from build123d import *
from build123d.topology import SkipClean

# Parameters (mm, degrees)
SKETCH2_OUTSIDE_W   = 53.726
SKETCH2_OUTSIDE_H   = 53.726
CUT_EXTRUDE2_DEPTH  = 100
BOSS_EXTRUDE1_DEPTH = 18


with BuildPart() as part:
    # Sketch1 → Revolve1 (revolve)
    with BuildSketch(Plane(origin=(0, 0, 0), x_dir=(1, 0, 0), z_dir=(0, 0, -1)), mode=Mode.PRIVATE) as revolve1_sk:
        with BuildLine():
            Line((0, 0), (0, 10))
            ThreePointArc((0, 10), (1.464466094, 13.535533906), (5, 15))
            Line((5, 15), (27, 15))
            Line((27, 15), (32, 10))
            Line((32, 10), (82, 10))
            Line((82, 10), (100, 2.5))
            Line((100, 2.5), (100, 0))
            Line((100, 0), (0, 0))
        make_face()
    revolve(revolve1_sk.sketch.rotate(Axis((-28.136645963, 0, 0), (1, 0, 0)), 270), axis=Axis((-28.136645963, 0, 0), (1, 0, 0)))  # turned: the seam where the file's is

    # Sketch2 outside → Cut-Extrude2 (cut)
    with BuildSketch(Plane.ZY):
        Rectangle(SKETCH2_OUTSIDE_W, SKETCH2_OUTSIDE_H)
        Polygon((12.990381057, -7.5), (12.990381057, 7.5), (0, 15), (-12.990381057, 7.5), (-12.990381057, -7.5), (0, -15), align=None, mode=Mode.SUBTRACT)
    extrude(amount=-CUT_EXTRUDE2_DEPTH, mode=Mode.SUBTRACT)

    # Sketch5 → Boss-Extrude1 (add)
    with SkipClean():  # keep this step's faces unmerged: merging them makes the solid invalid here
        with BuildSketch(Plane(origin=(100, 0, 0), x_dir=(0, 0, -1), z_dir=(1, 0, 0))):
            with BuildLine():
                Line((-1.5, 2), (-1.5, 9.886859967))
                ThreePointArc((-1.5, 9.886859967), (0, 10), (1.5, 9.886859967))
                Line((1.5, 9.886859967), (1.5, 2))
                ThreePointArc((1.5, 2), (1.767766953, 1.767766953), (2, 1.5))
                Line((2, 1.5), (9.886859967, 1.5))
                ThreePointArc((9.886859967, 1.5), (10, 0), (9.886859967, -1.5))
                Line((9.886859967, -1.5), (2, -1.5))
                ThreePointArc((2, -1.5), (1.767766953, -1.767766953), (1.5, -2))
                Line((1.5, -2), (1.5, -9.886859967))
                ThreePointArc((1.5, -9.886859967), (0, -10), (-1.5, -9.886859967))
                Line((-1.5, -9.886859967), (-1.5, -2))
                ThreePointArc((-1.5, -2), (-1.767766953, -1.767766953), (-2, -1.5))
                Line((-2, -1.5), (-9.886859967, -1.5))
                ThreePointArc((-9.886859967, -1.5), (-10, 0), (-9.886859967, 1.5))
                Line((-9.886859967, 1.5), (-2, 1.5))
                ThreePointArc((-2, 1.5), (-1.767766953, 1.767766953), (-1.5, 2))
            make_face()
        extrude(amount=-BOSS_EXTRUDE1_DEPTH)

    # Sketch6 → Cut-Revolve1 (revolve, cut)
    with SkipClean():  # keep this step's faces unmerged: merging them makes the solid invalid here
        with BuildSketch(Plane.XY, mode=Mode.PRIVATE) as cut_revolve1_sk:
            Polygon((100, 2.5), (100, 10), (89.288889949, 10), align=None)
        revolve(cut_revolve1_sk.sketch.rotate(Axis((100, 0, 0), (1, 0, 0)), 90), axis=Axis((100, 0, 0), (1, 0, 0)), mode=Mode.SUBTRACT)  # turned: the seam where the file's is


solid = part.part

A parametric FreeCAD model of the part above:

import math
import FreeCAD as App
import Part
import Sketcher

V = App.Vector
Q = App.Units.Quantity

doc = App.newDocument("Part")
params = doc.addObject("Spreadsheet::Sheet", "Params")
for row, (alias, value) in enumerate([
    ("sketch1_radius", "5 mm"),
    ("sketch1_width", "100 mm"),
    ("sketch1_width2", "50 mm"),
    ("sketch1_width3", "22 mm"),
    ("sketch1_height", "10 mm"),
    ("revolution_angle", "360 deg"),
    ("sketch2_width", "15 mm"),
    ("sketch2_length", "15 mm"),
    ("pocket1_length", "100 mm"),
    ("sketch3_radius", "10 mm"),
    ("sketch3_radius2", "2.5 mm"),
    ("pad1_length", "18 mm"),
    ("sketch4_height", "7.5 mm"),
    ("groove_angle", "360 deg"),
], start=1):
    params.set(f"A{row}", alias)
    params.set(f"B{row}", "=" + value)
    params.setAlias(f"B{row}", alias)

body = doc.addObject("PartDesign::Body", "Body")

sketch1 = body.newObject("Sketcher::SketchObject", "Sketch")
sketch1.AttachmentSupport = (doc.getObject("XY_Plane"), [""])
sketch1.MapMode = "FlatFace"
sketch1.addGeometry(Part.LineSegment(V(0, -10, 0), V(0, 0, 0)), False)
sketch1.addGeometry(Part.LineSegment(V(0, 0, 0), V(100, 0, 0)), False)
sketch1.addGeometry(Part.LineSegment(V(100, 0, 0), V(100, -2.5, 0)), False)
sketch1.addGeometry(Part.LineSegment(V(100, -2.5, 0), V(82, -10, 0)), False)
sketch1.addGeometry(Part.LineSegment(V(82, -10, 0), V(32, -10, 0)), False)
sketch1.addGeometry(Part.LineSegment(V(32, -10, 0), V(27, -15, 0)), False)
sketch1.addGeometry(Part.LineSegment(V(27, -15, 0), V(5, -15, 0)), False)
sketch1.addGeometry(Part.ArcOfCircle(Part.Circle(V(5, -10, 0), V(0, 0, 1), 5), math.radians(180), math.radians(270)), False)
sketch1.addConstraint(Sketcher.Constraint("Coincident", 0, 2, 1, 1))
sketch1.addConstraint(Sketcher.Constraint("Coincident", 1, 2, 2, 1))
sketch1.addConstraint(Sketcher.Constraint("Coincident", 2, 2, 3, 1))
sketch1.addConstraint(Sketcher.Constraint("Coincident", 3, 2, 4, 1))
sketch1.addConstraint(Sketcher.Constraint("Coincident", 4, 2, 5, 1))
sketch1.addConstraint(Sketcher.Constraint("Coincident", 5, 2, 6, 1))
sketch1.addConstraint(Sketcher.Constraint("Tangent", 6, 2, 7, 2))
sketch1.addConstraint(Sketcher.Constraint("Tangent", 7, 1, 0, 1))
sketch1.addConstraint(Sketcher.Constraint("Vertical", 0))
sketch1.addConstraint(Sketcher.Constraint("Horizontal", 1))
sketch1.addConstraint(Sketcher.Constraint("Vertical", 2))
sketch1.addConstraint(Sketcher.Constraint("Horizontal", 4))
sketch1.addConstraint(Sketcher.Constraint("Horizontal", 6))
sketch1.addConstraint(Sketcher.Constraint("Coincident", 0, 2, -1, 1))
sketch1.addConstraint(Sketcher.Constraint("Horizontal", 7, 3, 3, 2))
sketch1.addConstraint(Sketcher.Constraint("Radius", 7, Q("5 mm")))
sketch1.addConstraint(Sketcher.Constraint("DistanceX", 1, 1, 1, 2, Q("100 mm")))
sketch1.addConstraint(Sketcher.Constraint("DistanceX", 4, 2, 4, 1, Q("50 mm")))
sketch1.addConstraint(Sketcher.Constraint("DistanceX", 6, 2, 6, 1, Q("22 mm")))
sketch1.addConstraint(Sketcher.Constraint("DistanceY", 0, 1, 0, 2, Q("10 mm")))
sketch1.addConstraint(Sketcher.Constraint("Angle", 5, Q("-135 deg")))
sketch1.addConstraint(Sketcher.Constraint("DistanceY", 2, 2, 2, 1, Q("2.5 mm")))
sketch1.setExpression("Constraints[15]", "Params.sketch1_radius")
sketch1.setExpression("Constraints[16]", "Params.sketch1_width")
sketch1.setExpression("Constraints[17]", "Params.sketch1_width2")
sketch1.setExpression("Constraints[18]", "Params.sketch1_width3")
sketch1.setExpression("Constraints[19]", "Params.sketch1_height")
revolution = body.newObject("PartDesign::Revolution", "Revolution")
revolution.Profile = sketch1
revolution.ReferenceAxis = (sketch1, ["H_Axis"])
revolution.setExpression("Angle", "Params.revolution_angle")

sketch2 = body.newObject("Sketcher::SketchObject", "Sketch001")
sketch2.AttachmentSupport = (doc.getObject("YZ_Plane"), [""])
sketch2.MapMode = "FlatFace"
sketch2.addGeometry(Part.LineSegment(V(27, -27, 0), V(-27, -27, 0)), False)
sketch2.addGeometry(Part.LineSegment(V(-27, -27, 0), V(-27, 27, 0)), False)
sketch2.addGeometry(Part.LineSegment(V(-27, 27, 0), V(27, 27, 0)), False)
sketch2.addGeometry(Part.LineSegment(V(27, 27, 0), V(27, -27, 0)), False)
sketch2.addGeometry(Part.LineSegment(V(8, 13, 0), V(-8, 13, 0)), False)
sketch2.addGeometry(Part.LineSegment(V(-8, 13, 0), V(-15, 0, 0)), False)
sketch2.addGeometry(Part.LineSegment(V(-15, 0, 0), V(-8, -13, 0)), False)
sketch2.addGeometry(Part.LineSegment(V(-8, -13, 0), V(8, -13, 0)), False)
sketch2.addGeometry(Part.LineSegment(V(8, -13, 0), V(15, 0, 0)), False)
sketch2.addGeometry(Part.LineSegment(V(15, 0, 0), V(8, 13, 0)), False)
sketch2.addConstraint(Sketcher.Constraint("Coincident", 0, 2, 1, 1))
sketch2.addConstraint(Sketcher.Constraint("Coincident", 1, 2, 2, 1))
sketch2.addConstraint(Sketcher.Constraint("Coincident", 2, 2, 3, 1))
sketch2.addConstraint(Sketcher.Constraint("Coincident", 3, 2, 0, 1))
sketch2.addConstraint(Sketcher.Constraint("Coincident", 4, 2, 5, 1))
sketch2.addConstraint(Sketcher.Constraint("Coincident", 5, 2, 6, 1))
sketch2.addConstraint(Sketcher.Constraint("Coincident", 6, 2, 7, 1))
sketch2.addConstraint(Sketcher.Constraint("Coincident", 7, 2, 8, 1))
sketch2.addConstraint(Sketcher.Constraint("Coincident", 8, 2, 9, 1))
sketch2.addConstraint(Sketcher.Constraint("Coincident", 9, 2, 4, 1))
sketch2.addConstraint(Sketcher.Constraint("Horizontal", 0))
sketch2.addConstraint(Sketcher.Constraint("Vertical", 1))
sketch2.addConstraint(Sketcher.Constraint("Horizontal", 2))
sketch2.addConstraint(Sketcher.Constraint("Vertical", 3))
sketch2.addConstraint(Sketcher.Constraint("Horizontal", 4))
sketch2.addConstraint(Sketcher.Constraint("Horizontal", 7))
sketch2.addConstraint(Sketcher.Constraint("Symmetric", 0, 2, 2, 2, -1, 1))
sketch2.addConstraint(Sketcher.Constraint("Symmetric", 4, 2, 7, 2, -1, 1))
sketch2.addConstraint(Sketcher.Constraint("Symmetric", 5, 2, 8, 2, -1, 1))
sketch2.addConstraint(Sketcher.Constraint("PointOnObject", 5, 2, -1))
sketch2.addConstraint(Sketcher.Constraint("Parallel", 6, 9))
sketch2.addConstraint(Sketcher.Constraint("Vertical", 4, 2, 6, 2))
sketch2.addConstraint(Sketcher.Constraint("Equal", 2, 1))
sketch2.addConstraint(Sketcher.Constraint("DistanceX", 4, 2, 4, 1, Q("15 mm")))
sketch2.addConstraint(Sketcher.Constraint("Angle", 5, Q("-120 deg")))
sketch2.addConstraint(Sketcher.Constraint("Distance", 5, Q("15 mm")))
sketch2.addConstraint(Sketcher.Constraint("DistanceX", 0, 2, 0, 1, Q("53.726 mm")))
sketch2.setExpression("Constraints[23]", "Params.sketch2_width")
sketch2.setExpression("Constraints[25]", "Params.sketch2_length")
pocket1 = body.newObject("PartDesign::Pocket", "Pocket")
pocket1.Profile = sketch2
pocket1.setExpression("Length", "Params.pocket1_length")
pocket1.Reversed = True

sketch3 = body.newObject("Sketcher::SketchObject", "Sketch002")
sketch3.AttachmentSupport = (doc.getObject("YZ_Plane"), [""])
sketch3.MapMode = "FlatFace"
sketch3.AttachmentOffset = App.Placement(V(0, 0, 100), App.Rotation())
sketch3.addGeometry(Part.LineSegment(V(9.9, 1.5, 0), V(2, 1.5, 0)), False)
sketch3.addGeometry(Part.ArcOfCircle(Part.Circle(V(0, 0, 0), V(0, 0, 1), 2.5), math.radians(36.87), math.radians(53.13)), False)
sketch3.addGeometry(Part.LineSegment(V(1.5, 2, 0), V(1.5, 9.9, 0)), False)
sketch3.addGeometry(Part.ArcOfCircle(Part.Circle(V(0, 0, 0), V(0, 0, 1), 10), math.radians(81.37), math.radians(98.63)), False)
sketch3.addGeometry(Part.LineSegment(V(-1.5, 9.9, 0), V(-1.5, 2, 0)), False)
sketch3.addGeometry(Part.ArcOfCircle(Part.Circle(V(0, 0, 0), V(0, 0, 1), 2.5), math.radians(126.87), math.radians(143.13)), False)
sketch3.addGeometry(Part.LineSegment(V(-2, 1.5, 0), V(-9.9, 1.5, 0)), False)
sketch3.addGeometry(Part.ArcOfCircle(Part.Circle(V(0, 0, 0), V(0, 0, 1), 10), math.radians(171.37), math.radians(188.63)), False)
sketch3.addGeometry(Part.LineSegment(V(-9.9, -1.5, 0), V(-2, -1.5, 0)), False)
sketch3.addGeometry(Part.ArcOfCircle(Part.Circle(V(0, 0, 0), V(0, 0, 1), 2.5), math.radians(-143.13), math.radians(-126.87)), False)
sketch3.addGeometry(Part.LineSegment(V(-1.5, -2, 0), V(-1.5, -9.9, 0)), False)
sketch3.addGeometry(Part.ArcOfCircle(Part.Circle(V(0, 0, 0), V(0, 0, 1), 10), math.radians(-98.63), math.radians(-81.37)), False)
sketch3.addGeometry(Part.LineSegment(V(1.5, -9.9, 0), V(1.5, -2, 0)), False)
sketch3.addGeometry(Part.ArcOfCircle(Part.Circle(V(0, 0, 0), V(0, 0, 1), 2.5), math.radians(-53.13), math.radians(-36.87)), False)
sketch3.addGeometry(Part.LineSegment(V(2, -1.5, 0), V(9.9, -1.5, 0)), False)
sketch3.addGeometry(Part.ArcOfCircle(Part.Circle(V(0, 0, 0), V(0, 0, 1), 10), math.radians(-8.63), math.radians(8.63)), False)
sketch3.addConstraint(Sketcher.Constraint("Coincident", 0, 2, 1, 1))
sketch3.addConstraint(Sketcher.Constraint("Coincident", 1, 2, 2, 1))
sketch3.addConstraint(Sketcher.Constraint("Coincident", 2, 2, 3, 1))
sketch3.addConstraint(Sketcher.Constraint("Coincident", 3, 2, 4, 1))
sketch3.addConstraint(Sketcher.Constraint("Coincident", 4, 2, 5, 1))
sketch3.addConstraint(Sketcher.Constraint("Coincident", 5, 2, 6, 1))
sketch3.addConstraint(Sketcher.Constraint("Coincident", 6, 2, 7, 1))
sketch3.addConstraint(Sketcher.Constraint("Coincident", 7, 2, 8, 1))
sketch3.addConstraint(Sketcher.Constraint("Coincident", 8, 2, 9, 1))
sketch3.addConstraint(Sketcher.Constraint("Coincident", 9, 2, 10, 1))
sketch3.addConstraint(Sketcher.Constraint("Coincident", 10, 2, 11, 1))
sketch3.addConstraint(Sketcher.Constraint("Coincident", 11, 2, 12, 1))
sketch3.addConstraint(Sketcher.Constraint("Coincident", 12, 2, 13, 1))
sketch3.addConstraint(Sketcher.Constraint("Coincident", 13, 2, 14, 1))
sketch3.addConstraint(Sketcher.Constraint("Coincident", 14, 2, 15, 1))
sketch3.addConstraint(Sketcher.Constraint("Coincident", 15, 2, 0, 1))
sketch3.addConstraint(Sketcher.Constraint("Horizontal", 0))
sketch3.addConstraint(Sketcher.Constraint("Vertical", 2))
sketch3.addConstraint(Sketcher.Constraint("Vertical", 4))
sketch3.addConstraint(Sketcher.Constraint("Horizontal", 6))
sketch3.addConstraint(Sketcher.Constraint("Horizontal", 8))
sketch3.addConstraint(Sketcher.Constraint("Vertical", 10))
sketch3.addConstraint(Sketcher.Constraint("Vertical", 12))
sketch3.addConstraint(Sketcher.Constraint("Horizontal", 14))
sketch3.addConstraint(Sketcher.Constraint("Coincident", 1, 3, -1, 1))
sketch3.addConstraint(Sketcher.Constraint("Coincident", 3, 3, -1, 1))
sketch3.addConstraint(Sketcher.Constraint("Coincident", 5, 3, -1, 1))
sketch3.addConstraint(Sketcher.Constraint("Coincident", 7, 3, -1, 1))
sketch3.addConstraint(Sketcher.Constraint("Coincident", 9, 3, -1, 1))
sketch3.addConstraint(Sketcher.Constraint("Coincident", 11, 3, -1, 1))
sketch3.addConstraint(Sketcher.Constraint("Coincident", 13, 3, -1, 1))
sketch3.addConstraint(Sketcher.Constraint("Coincident", 15, 3, -1, 1))
sketch3.addConstraint(Sketcher.Constraint("Equal", 1, 5))
sketch3.addConstraint(Sketcher.Constraint("Equal", 3, 7))
sketch3.addConstraint(Sketcher.Constraint("Equal", 5, 9))
sketch3.addConstraint(Sketcher.Constraint("Equal", 7, 11))
sketch3.addConstraint(Sketcher.Constraint("Equal", 9, 13))
sketch3.addConstraint(Sketcher.Constraint("Equal", 11, 15))
sketch3.addConstraint(Sketcher.Constraint("Horizontal", 2, 2, 3, 2))
sketch3.addConstraint(Sketcher.Constraint("Horizontal", 0, 2, 5, 2))
sketch3.addConstraint(Sketcher.Constraint("Horizontal", 10, 2, 11, 2))
sketch3.addConstraint(Sketcher.Constraint("Horizontal", 8, 2, 13, 2))
sketch3.addConstraint(Sketcher.Constraint("Vertical", 6, 2, 7, 2))
sketch3.addConstraint(Sketcher.Constraint("Vertical", 4, 2, 9, 2))
sketch3.addConstraint(Sketcher.Constraint("Equal", 14, 2))
sketch3.addConstraint(Sketcher.Constraint("Radius", 3, Q("10 mm")))
sketch3.addConstraint(Sketcher.Constraint("Radius", 1, Q("2.5 mm")))
sketch3.addConstraint(Sketcher.Constraint("DistanceX", -1, 1, 0, 2, Q("2 mm")))
sketch3.setExpression("Constraints[45]", "Params.sketch3_radius")
sketch3.setExpression("Constraints[46]", "Params.sketch3_radius2")
pad1 = body.newObject("PartDesign::Pad", "Pad")
pad1.Profile = sketch3
pad1.setExpression("Length", "Params.pad1_length")
pad1.Reversed = True

sketch4 = body.newObject("Sketcher::SketchObject", "Sketch003")
sketch4.AttachmentSupport = (doc.getObject("XY_Plane"), [""])
sketch4.MapMode = "FlatFace"
sketch4.addGeometry(Part.LineSegment(V(100, 2, 0), V(100, 10, 0)), False)
sketch4.addGeometry(Part.LineSegment(V(100, 10, 0), V(89, 10, 0)), False)
sketch4.addGeometry(Part.LineSegment(V(89, 10, 0), V(100, 2, 0)), False)
sketch4.addConstraint(Sketcher.Constraint("Coincident", 0, 2, 1, 1))
sketch4.addConstraint(Sketcher.Constraint("Coincident", 1, 2, 2, 1))
sketch4.addConstraint(Sketcher.Constraint("Coincident", 2, 2, 0, 1))
sketch4.addConstraint(Sketcher.Constraint("Vertical", 0))
sketch4.addConstraint(Sketcher.Constraint("Horizontal", 1))
sketch4.addConstraint(Sketcher.Constraint("Angle", 2, Q("-35 deg")))
sketch4.addConstraint(Sketcher.Constraint("DistanceY", 0, 1, 0, 2, Q("7.5 mm")))
sketch4.addConstraint(Sketcher.Constraint("DistanceX", -1, 1, 0, 2, Q("100 mm")))
sketch4.addConstraint(Sketcher.Constraint("DistanceY", -1, 1, 0, 2, Q("10 mm")))
sketch4.setExpression("Constraints[6]", "Params.sketch4_height")
groove = body.newObject("PartDesign::Groove", "Groove")
groove.Profile = sketch4
groove.ReferenceAxis = (sketch4, ["H_Axis"])
groove.setExpression("Angle", "Params.groove_angle")

doc.recompute()
